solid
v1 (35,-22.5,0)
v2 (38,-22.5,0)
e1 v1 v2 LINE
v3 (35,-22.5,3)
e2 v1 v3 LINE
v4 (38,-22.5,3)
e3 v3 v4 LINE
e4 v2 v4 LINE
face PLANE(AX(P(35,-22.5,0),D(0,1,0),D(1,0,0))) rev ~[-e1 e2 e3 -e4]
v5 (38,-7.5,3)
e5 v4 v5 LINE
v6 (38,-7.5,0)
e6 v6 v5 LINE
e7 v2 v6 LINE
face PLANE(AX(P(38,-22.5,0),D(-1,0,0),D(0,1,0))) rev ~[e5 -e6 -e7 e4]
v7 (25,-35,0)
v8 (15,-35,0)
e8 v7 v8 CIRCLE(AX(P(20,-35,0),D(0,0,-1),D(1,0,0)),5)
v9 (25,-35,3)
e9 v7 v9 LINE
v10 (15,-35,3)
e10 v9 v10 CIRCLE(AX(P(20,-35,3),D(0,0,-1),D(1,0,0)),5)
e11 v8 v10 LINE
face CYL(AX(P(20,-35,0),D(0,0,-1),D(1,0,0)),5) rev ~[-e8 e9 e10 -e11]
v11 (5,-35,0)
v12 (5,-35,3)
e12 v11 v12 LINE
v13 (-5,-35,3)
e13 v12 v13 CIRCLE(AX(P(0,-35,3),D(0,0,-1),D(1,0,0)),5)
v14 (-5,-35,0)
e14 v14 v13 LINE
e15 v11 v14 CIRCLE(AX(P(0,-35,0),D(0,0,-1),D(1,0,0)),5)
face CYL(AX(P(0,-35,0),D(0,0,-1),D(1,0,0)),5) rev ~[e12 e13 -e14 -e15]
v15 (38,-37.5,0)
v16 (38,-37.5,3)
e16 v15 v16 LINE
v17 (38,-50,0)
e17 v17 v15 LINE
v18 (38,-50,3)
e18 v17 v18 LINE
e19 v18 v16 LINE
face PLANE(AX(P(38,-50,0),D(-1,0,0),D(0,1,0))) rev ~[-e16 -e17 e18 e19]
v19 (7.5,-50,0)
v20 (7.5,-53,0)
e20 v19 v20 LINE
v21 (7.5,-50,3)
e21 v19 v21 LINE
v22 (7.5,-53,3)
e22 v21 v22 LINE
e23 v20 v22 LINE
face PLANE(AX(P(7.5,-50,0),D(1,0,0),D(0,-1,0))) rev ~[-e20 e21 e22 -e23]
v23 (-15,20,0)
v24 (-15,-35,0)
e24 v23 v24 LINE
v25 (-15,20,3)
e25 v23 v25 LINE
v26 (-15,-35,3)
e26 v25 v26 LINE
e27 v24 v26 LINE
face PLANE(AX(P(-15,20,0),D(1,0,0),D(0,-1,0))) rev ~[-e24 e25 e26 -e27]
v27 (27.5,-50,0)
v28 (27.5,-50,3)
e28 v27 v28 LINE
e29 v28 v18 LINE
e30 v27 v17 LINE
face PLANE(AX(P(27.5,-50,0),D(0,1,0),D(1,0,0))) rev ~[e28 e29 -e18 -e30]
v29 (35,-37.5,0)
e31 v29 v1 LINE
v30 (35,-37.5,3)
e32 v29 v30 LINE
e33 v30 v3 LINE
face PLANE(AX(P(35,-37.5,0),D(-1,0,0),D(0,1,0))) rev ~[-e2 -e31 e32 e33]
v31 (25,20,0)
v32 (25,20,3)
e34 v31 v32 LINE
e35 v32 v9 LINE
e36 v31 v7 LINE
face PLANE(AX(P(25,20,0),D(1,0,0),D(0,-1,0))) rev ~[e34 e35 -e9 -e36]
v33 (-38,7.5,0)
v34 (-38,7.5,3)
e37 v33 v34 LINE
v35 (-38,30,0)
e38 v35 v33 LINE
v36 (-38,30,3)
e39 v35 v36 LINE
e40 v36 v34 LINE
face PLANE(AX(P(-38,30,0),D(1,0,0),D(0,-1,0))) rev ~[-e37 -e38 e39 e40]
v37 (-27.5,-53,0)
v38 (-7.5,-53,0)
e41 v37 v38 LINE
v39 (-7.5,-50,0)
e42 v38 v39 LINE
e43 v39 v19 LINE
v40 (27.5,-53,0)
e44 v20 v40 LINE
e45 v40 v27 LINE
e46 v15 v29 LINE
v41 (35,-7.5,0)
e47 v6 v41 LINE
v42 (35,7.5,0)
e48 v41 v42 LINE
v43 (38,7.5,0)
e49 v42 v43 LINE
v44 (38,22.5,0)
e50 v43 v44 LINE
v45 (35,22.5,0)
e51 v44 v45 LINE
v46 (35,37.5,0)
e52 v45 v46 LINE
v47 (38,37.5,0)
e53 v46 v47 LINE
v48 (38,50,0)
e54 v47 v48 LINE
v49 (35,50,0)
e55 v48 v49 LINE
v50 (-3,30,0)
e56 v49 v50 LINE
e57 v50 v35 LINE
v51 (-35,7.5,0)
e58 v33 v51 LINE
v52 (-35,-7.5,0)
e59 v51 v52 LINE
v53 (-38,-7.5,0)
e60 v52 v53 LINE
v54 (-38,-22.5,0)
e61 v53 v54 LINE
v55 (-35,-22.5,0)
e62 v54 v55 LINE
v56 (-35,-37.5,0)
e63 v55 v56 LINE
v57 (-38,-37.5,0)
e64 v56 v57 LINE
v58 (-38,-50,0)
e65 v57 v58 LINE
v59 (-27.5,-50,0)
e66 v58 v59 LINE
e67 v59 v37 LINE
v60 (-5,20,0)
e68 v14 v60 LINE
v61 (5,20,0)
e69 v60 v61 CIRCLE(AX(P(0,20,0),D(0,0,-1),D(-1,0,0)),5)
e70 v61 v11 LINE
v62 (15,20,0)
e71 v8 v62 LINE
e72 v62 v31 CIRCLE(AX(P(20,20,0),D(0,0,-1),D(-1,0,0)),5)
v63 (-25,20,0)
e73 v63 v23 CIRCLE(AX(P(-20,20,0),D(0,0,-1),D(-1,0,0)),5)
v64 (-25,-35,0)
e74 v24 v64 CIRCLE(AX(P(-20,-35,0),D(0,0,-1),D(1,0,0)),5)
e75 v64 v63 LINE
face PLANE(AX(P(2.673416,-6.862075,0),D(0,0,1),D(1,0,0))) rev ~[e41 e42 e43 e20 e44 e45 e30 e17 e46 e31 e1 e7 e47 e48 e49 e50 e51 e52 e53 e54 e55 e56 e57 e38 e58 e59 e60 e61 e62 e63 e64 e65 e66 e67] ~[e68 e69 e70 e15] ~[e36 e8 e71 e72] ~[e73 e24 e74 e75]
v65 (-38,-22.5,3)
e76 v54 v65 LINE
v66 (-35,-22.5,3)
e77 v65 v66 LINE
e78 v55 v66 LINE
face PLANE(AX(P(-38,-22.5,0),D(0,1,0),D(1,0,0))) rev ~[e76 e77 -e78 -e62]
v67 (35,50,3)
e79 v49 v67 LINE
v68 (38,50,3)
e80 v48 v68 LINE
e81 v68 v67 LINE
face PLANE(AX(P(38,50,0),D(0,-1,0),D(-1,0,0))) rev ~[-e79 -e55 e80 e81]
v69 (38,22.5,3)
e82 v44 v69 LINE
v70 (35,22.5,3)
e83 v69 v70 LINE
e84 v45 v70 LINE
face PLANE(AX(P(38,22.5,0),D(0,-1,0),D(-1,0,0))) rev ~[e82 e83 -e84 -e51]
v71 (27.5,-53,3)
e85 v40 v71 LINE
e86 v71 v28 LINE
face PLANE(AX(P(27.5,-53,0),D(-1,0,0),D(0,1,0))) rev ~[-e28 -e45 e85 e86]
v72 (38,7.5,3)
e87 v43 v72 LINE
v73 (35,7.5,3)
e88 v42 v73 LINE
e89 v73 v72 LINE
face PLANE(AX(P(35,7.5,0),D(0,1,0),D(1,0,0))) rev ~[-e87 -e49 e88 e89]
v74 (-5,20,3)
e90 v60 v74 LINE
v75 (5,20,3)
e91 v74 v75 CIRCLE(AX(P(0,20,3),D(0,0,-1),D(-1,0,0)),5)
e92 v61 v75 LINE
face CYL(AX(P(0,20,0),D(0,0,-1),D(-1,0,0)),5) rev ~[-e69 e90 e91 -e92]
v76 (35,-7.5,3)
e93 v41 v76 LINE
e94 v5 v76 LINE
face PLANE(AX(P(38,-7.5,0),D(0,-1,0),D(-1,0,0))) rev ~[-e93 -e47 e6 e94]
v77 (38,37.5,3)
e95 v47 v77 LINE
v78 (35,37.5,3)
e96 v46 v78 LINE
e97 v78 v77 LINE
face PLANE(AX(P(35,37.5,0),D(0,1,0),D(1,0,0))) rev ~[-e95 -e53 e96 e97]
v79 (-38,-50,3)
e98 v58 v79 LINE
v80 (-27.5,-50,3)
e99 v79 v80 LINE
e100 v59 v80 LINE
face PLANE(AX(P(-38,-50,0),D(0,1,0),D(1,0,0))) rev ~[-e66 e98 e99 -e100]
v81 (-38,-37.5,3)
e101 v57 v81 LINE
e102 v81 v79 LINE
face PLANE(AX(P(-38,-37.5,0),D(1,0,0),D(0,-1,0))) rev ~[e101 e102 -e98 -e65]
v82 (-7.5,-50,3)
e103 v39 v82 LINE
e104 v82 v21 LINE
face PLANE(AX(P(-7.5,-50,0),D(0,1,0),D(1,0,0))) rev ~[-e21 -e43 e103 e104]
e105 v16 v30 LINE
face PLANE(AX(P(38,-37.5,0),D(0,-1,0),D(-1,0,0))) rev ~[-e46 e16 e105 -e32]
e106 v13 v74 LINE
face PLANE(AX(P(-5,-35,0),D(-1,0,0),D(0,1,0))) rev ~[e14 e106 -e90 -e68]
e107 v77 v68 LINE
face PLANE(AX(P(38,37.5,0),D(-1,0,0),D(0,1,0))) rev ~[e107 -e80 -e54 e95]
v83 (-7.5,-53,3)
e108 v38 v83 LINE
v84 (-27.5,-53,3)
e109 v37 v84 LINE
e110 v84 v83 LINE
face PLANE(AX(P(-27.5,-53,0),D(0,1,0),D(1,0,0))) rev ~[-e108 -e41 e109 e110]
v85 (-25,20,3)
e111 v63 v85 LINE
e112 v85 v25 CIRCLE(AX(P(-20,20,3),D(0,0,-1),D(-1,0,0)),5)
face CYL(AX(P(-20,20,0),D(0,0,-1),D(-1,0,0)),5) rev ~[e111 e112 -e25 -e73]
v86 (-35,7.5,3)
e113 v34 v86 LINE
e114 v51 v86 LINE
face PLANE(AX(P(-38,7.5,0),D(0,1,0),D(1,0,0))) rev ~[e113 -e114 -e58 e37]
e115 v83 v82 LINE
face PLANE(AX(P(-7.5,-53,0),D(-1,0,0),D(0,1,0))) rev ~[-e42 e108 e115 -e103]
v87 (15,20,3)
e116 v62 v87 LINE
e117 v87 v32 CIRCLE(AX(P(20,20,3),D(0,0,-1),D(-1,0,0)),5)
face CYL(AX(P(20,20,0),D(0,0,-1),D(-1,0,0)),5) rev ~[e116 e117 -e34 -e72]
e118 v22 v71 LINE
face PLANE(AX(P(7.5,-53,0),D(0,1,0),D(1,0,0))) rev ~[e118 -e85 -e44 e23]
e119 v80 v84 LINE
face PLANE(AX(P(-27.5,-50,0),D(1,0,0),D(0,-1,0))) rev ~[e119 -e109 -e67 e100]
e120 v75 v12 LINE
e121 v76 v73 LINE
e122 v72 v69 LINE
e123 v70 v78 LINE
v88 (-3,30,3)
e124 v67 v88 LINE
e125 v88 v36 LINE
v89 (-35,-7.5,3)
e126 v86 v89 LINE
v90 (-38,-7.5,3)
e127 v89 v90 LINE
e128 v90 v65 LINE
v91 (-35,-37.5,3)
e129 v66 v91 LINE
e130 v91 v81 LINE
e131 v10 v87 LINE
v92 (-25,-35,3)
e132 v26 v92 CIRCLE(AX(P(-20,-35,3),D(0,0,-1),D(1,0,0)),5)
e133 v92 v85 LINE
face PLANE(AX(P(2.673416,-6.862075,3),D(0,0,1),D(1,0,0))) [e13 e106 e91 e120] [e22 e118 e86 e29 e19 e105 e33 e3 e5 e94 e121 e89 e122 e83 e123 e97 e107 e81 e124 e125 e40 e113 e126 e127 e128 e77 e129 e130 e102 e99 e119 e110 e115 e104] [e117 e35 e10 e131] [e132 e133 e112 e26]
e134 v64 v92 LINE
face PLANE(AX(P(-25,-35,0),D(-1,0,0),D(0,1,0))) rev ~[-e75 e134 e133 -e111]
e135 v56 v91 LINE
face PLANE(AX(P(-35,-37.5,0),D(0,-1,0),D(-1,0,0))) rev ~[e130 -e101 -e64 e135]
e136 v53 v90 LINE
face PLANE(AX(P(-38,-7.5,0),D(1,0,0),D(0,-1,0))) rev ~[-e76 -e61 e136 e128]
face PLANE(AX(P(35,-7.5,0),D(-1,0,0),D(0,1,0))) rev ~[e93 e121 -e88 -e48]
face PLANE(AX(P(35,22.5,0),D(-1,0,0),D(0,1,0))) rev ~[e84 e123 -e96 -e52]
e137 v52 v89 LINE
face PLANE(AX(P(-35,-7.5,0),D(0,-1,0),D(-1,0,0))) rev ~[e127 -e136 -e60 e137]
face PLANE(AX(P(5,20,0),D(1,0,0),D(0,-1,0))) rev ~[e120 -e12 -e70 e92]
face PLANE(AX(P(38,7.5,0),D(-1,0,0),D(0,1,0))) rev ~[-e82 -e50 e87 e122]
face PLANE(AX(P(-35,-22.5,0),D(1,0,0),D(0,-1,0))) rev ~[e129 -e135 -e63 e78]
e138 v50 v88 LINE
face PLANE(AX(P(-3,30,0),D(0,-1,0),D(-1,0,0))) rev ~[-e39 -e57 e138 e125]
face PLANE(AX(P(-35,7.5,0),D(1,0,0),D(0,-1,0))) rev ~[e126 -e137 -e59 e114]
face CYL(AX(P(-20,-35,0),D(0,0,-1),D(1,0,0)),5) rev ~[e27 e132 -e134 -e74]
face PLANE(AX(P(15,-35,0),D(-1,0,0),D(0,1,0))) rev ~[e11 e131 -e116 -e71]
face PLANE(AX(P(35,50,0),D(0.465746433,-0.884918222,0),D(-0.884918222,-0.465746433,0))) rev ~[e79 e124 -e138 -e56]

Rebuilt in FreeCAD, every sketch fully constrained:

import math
import FreeCAD as App
import Part
import Sketcher

doc = App.newDocument("Part")
body = doc.addObject("PartDesign::Body", "Body")

# Sketch on XY plane
sketch1 = body.newObject("Sketcher::SketchObject", "Sketch")
sketch1.AttachmentSupport = (doc.getObject("XY_Plane"), [""])
sketch1.MapMode = "FlatFace"
sketch1.addGeometry([
    Part.LineSegment(App.Vector(35, 50, 0), App.Vector(-3, 30, 0)),  # 0
    Part.LineSegment(App.Vector(-3, 30, 0), App.Vector(-38, 30, 0)),  # 1
    Part.LineSegment(App.Vector(-38, 30, 0), App.Vector(-38, 7.5, 0)),  # 2
    Part.LineSegment(App.Vector(-38, 7.5, 0), App.Vector(-35, 7.5, 0)),  # 3
    Part.LineSegment(App.Vector(-35, 7.5, 0), App.Vector(-35, -7.5, 0)),  # 4
    Part.LineSegment(App.Vector(-35, -7.5, 0), App.Vector(-38, -7.5, 0)),  # 5
    Part.LineSegment(App.Vector(-38, -7.5, 0), App.Vector(-38, -22.5, 0)),  # 6
    Part.LineSegment(App.Vector(-38, -22.5, 0), App.Vector(-35, -22.5, 0)),  # 7
    Part.LineSegment(App.Vector(-35, -22.5, 0), App.Vector(-35, -37.5, 0)),  # 8
    Part.LineSegment(App.Vector(-35, -37.5, 0), App.Vector(-38, -37.5, 0)),  # 9
    Part.LineSegment(App.Vector(-38, -37.5, 0), App.Vector(-38, -50, 0)),  # 10
    Part.LineSegment(App.Vector(-38, -50, 0), App.Vector(-27.5, -50, 0)),  # 11
    Part.LineSegment(App.Vector(-27.5, -50, 0), App.Vector(-27.5, -53, 0)),  # 12
    Part.LineSegment(App.Vector(-27.5, -53, 0), App.Vector(-7.5, -53, 0)),  # 13
    Part.LineSegment(App.Vector(-7.5, -53, 0), App.Vector(-7.5, -50, 0)),  # 14
    Part.LineSegment(App.Vector(-7.5, -50, 0), App.Vector(7.5, -50, 0)),  # 15
    Part.LineSegment(App.Vector(7.5, -50, 0), App.Vector(7.5, -53, 0)),  # 16
    Part.LineSegment(App.Vector(7.5, -53, 0), App.Vector(27.5, -53, 0)),  # 17
    Part.LineSegment(App.Vector(27.5, -53, 0), App.Vector(27.5, -50, 0)),  # 18
    Part.LineSegment(App.Vector(27.5, -50, 0), App.Vector(38, -50, 0)),  # 19
    Part.LineSegment(App.Vector(38, -50, 0), App.Vector(38, -37.5, 0)),  # 20
    Part.LineSegment(App.Vector(38, -37.5, 0), App.Vector(35, -37.5, 0)),  # 21
    Part.LineSegment(App.Vector(35, -37.5, 0), App.Vector(35, -22.5, 0)),  # 22
    Part.LineSegment(App.Vector(35, -22.5, 0), App.Vector(38, -22.5, 0)),  # 23
    Part.LineSegment(App.Vector(38, -22.5, 0), App.Vector(38, -7.5, 0)),  # 24
    Part.LineSegment(App.Vector(38, -7.5, 0), App.Vector(35, -7.5, 0)),  # 25
    Part.LineSegment(App.Vector(35, -7.5, 0), App.Vector(35, 7.5, 0)),  # 26
    Part.LineSegment(App.Vector(35, 7.5, 0), App.Vector(38, 7.5, 0)),  # 27
    Part.LineSegment(App.Vector(38, 7.5, 0), App.Vector(38, 22.5, 0)),  # 28
    Part.LineSegment(App.Vector(38, 22.5, 0), App.Vector(35, 22.5, 0)),  # 29
    Part.LineSegment(App.Vector(35, 22.5, 0), App.Vector(35, 37.5, 0)),  # 30
    Part.LineSegment(App.Vector(35, 37.5, 0), App.Vector(38, 37.5, 0)),  # 31
    Part.LineSegment(App.Vector(38, 37.5, 0), App.Vector(38, 50, 0)),  # 32
    Part.LineSegment(App.Vector(38, 50, 0), App.Vector(35, 50, 0)),  # 33
    Part.ArcOfCircle(Part.Circle(App.Vector(-20, 20, 0), App.Vector(0, 0, 1), 5), math.radians(0), math.radians(180)),  # 34
    Part.LineSegment(App.Vector(-15, 20, 0), App.Vector(-15, -35, 0)),  # 35
    Part.ArcOfCircle(Part.Circle(App.Vector(-20, -35, 0), App.Vector(0, 0, 1), 5), math.radians(180), math.radians(360)),  # 36
    Part.LineSegment(App.Vector(-25, -35, 0), App.Vector(-25, 20, 0)),  # 37
    Part.LineSegment(App.Vector(5, 20, 0), App.Vector(5, -35, 0)),  # 38
    Part.ArcOfCircle(Part.Circle(App.Vector(0, -35, 0), App.Vector(0, 0, 1), 5), math.radians(180), math.radians(360)),  # 39
    Part.LineSegment(App.Vector(-5, -35, 0), App.Vector(-5, 20, 0)),  # 40
    Part.ArcOfCircle(Part.Circle(App.Vector(0, 20, 0), App.Vector(0, 0, 1), 5), math.radians(0), math.radians(180)),  # 41
    Part.LineSegment(App.Vector(25, 20, 0), App.Vector(25, -35, 0)),  # 42
    Part.ArcOfCircle(Part.Circle(App.Vector(20, -35, 0), App.Vector(0, 0, 1), 5), math.radians(180), math.radians(360)),  # 43
    Part.LineSegment(App.Vector(15, -35, 0), App.Vector(15, 20, 0)),  # 44
    Part.ArcOfCircle(Part.Circle(App.Vector(20, 20, 0), App.Vector(0, 0, 1), 5), math.radians(0), math.radians(180)),  # 45
], False)
sketch1.addConstraint([
    Sketcher.Constraint("Coincident", 0, 2, 1, 1),
    Sketcher.Constraint("Coincident", 1, 2, 2, 1),
    Sketcher.Constraint("Coincident", 2, 2, 3, 1),
    Sketcher.Constraint("Coincident", 3, 2, 4, 1),
    Sketcher.Constraint("Coincident", 4, 2, 5, 1),
    Sketcher.Constraint("Coincident", 5, 2, 6, 1),
    Sketcher.Constraint("Coincident", 6, 2, 7, 1),
    Sketcher.Constraint("Coincident", 7, 2, 8, 1),
    Sketcher.Constraint("Coincident", 8, 2, 9, 1),
    Sketcher.Constraint("Coincident", 9, 2, 10, 1),
    Sketcher.Constraint("Coincident", 10, 2, 11, 1),
    Sketcher.Constraint("Coincident", 11, 2, 12, 1),
    Sketcher.Constraint("Coincident", 12, 2, 13, 1),
    Sketcher.Constraint("Coincident", 13, 2, 14, 1),
    Sketcher.Constraint("Coincident", 14, 2, 15, 1),
    Sketcher.Constraint("Coincident", 15, 2, 16, 1),
    Sketcher.Constraint("Coincident", 16, 2, 17, 1),
    Sketcher.Constraint("Coincident", 17, 2, 18, 1),
    Sketcher.Constraint("Coincident", 18, 2, 19, 1),
    Sketcher.Constraint("Coincident", 19, 2, 20, 1),
    Sketcher.Constraint("Coincident", 20, 2, 21, 1),
    Sketcher.Constraint("Coincident", 21, 2, 22, 1),
    Sketcher.Constraint("Coincident", 22, 2, 23, 1),
    Sketcher.Constraint("Coincident", 23, 2, 24, 1),
    Sketcher.Constraint("Coincident", 24, 2, 25, 1),
    Sketcher.Constraint("Coincident", 25, 2, 26, 1),
    Sketcher.Constraint("Coincident", 26, 2, 27, 1),
    Sketcher.Constraint("Coincident", 27, 2, 28, 1),
    Sketcher.Constraint("Coincident", 28, 2, 29, 1),
    Sketcher.Constraint("Coincident", 29, 2, 30, 1),
    Sketcher.Constraint("Coincident", 30, 2, 31, 1),
    Sketcher.Constraint("Coincident", 31, 2, 32, 1),
    Sketcher.Constraint("Coincident", 32, 2, 33, 1),
    Sketcher.Constraint("Coincident", 33, 2, 0, 1),
    Sketcher.Constraint("Tangent", 34, 1, 35, 1),
    Sketcher.Constraint("Tangent", 35, 2, 36, 2),
    Sketcher.Constraint("Tangent", 36, 1, 37, 1),
    Sketcher.Constraint("Tangent", 37, 2, 34, 2),
    Sketcher.Constraint("Tangent", 38, 2, 39, 2),
    Sketcher.Constraint("Tangent", 39, 1, 40, 1),
    Sketcher.Constraint("Tangent", 40, 2, 41, 2),
    Sketcher.Constraint("Tangent", 41, 1, 38, 1),
    Sketcher.Constraint("Tangent", 42, 2, 43, 2),
    Sketcher.Constraint("Tangent", 43, 1, 44, 1),
    Sketcher.Constraint("Tangent", 44, 2, 45, 2),
    Sketcher.Constraint("Tangent", 45, 1, 42, 1),
    Sketcher.Constraint("Horizontal", 1),
    Sketcher.Constraint("Vertical", 2),
    Sketcher.Constraint("Horizontal", 3),
    Sketcher.Constraint("Vertical", 4),
    Sketcher.Constraint("Horizontal", 5),
    Sketcher.Constraint("Vertical", 6),
    Sketcher.Constraint("Horizontal", 7),
    Sketcher.Constraint("Vertical", 8),
    Sketcher.Constraint("Horizontal", 9),
    Sketcher.Constraint("Vertical", 10),
    Sketcher.Constraint("Horizontal", 11),
    Sketcher.Constraint("Vertical", 12),
    Sketcher.Constraint("Horizontal", 13),
    Sketcher.Constraint("Vertical", 14),
    Sketcher.Constraint("Horizontal", 15),
    Sketcher.Constraint("Vertical", 16),
    Sketcher.Constraint("Horizontal", 17),
    Sketcher.Constraint("Vertical", 18),
    Sketcher.Constraint("Horizontal", 19),
    Sketcher.Constraint("Vertical", 20),
    Sketcher.Constraint("Horizontal", 21),
    Sketcher.Constraint("Vertical", 22),
    Sketcher.Constraint("Horizontal", 23),
    Sketcher.Constraint("Vertical", 24),
    Sketcher.Constraint("Horizontal", 25),
    Sketcher.Constraint("Vertical", 26),
    Sketcher.Constraint("Horizontal", 27),
    Sketcher.Constraint("Vertical", 28),
    Sketcher.Constraint("Horizontal", 29),
    Sketcher.Constraint("Vertical", 30),
    Sketcher.Constraint("Horizontal", 31),
    Sketcher.Constraint("Vertical", 32),
    Sketcher.Constraint("Horizontal", 33),
    Sketcher.Constraint("Vertical", 35),
    Sketcher.Constraint("Vertical", 37),
    Sketcher.Constraint("Vertical", 38),
    Sketcher.Constraint("Vertical", 40),
    Sketcher.Constraint("Vertical", 42),
    Sketcher.Constraint("Vertical", 44),
    Sketcher.Constraint("Equal", 36, 39),
    Sketcher.Constraint("Equal", 41, 43),
    Sketcher.Constraint("Symmetric", 2, 2, 24, 2, -1, 1),
    Sketcher.Constraint("Symmetric", 4, 2, 26, 2, -1, 1),
    Sketcher.Constraint("Symmetric", 6, 2, 28, 2, -1, 1),
    Sketcher.Constraint("Symmetric", 8, 2, 30, 2, -1, 1),
    Sketcher.Constraint("Symmetric", 10, 2, 32, 2, -1, 1),
    Sketcher.Constraint("Symmetric", 36, 3, 43, 3, -2),
    Sketcher.Constraint("Symmetric", 13, 2, 16, 2, -2),
    Sketcher.Constraint("Symmetric", 11, 2, 18, 2, -2),
    Sketcher.Constraint("Symmetric", 9, 2, 20, 2, -2),
    Sketcher.Constraint("Symmetric", 7, 2, 22, 2, -2),
    Sketcher.Constraint("Symmetric", 5, 2, 24, 2, -2),
    Sketcher.Constraint("PointOnObject", 39, 3, -2),
    Sketcher.Constraint("Horizontal", 36, 3, 39, 3),
    Sketcher.Constraint("Horizontal", 34, 3, 41, 3),
    Sketcher.Constraint("Horizontal", 41, 3, 45, 3),
    Sketcher.Constraint("Horizontal", 11, 2, 14, 2),
    Sketcher.Constraint("Vertical", 4, 2, 7, 2),
    Sketcher.Constraint("Vertical", 6, 2, 9, 2),
    Sketcher.Constraint("Vertical", 30, 2, 33, 2),
    Sketcher.Constraint("Equal", 15, 4),
    Sketcher.Constraint("Equal", 4, 6),
    Sketcher.Constraint("Equal", 6, 8),
    Sketcher.Constraint("Equal", 33, 12),
    Sketcher.Constraint("Radius", 34, 5.0),
    Sketcher.Constraint("DistanceX", 1, 2, 1, 1, 35.0),
    Sketcher.Constraint("DistanceX", 3, 1, 3, 2, 3.0),
    Sketcher.Constraint("DistanceX", 13, 1, 13, 2, 20.0),
    Sketcher.Constraint("DistanceX", 15, 1, 15, 2, 15.0),
    Sketcher.Constraint("DistanceY", 35, 2, 35, 1, 55.0),
    Sketcher.Constraint("DistanceX", 11, 1, 11, 2, 10.5),
    Sketcher.Constraint("DistanceY", 2, 2, 2, 1, 22.5),
    Sketcher.Constraint("DistanceY", 10, 2, 10, 1, 12.5),
    Sketcher.Constraint("DistanceX", 34, 3, -1, 1, 20.0),
    Sketcher.Constraint("DistanceY", -1, 1, 34, 3, 20.0),
])
pad1 = body.newObject("PartDesign::Pad", "Pad")
pad1.Profile = sketch1
pad1.Length = 3

doc.recompute()
